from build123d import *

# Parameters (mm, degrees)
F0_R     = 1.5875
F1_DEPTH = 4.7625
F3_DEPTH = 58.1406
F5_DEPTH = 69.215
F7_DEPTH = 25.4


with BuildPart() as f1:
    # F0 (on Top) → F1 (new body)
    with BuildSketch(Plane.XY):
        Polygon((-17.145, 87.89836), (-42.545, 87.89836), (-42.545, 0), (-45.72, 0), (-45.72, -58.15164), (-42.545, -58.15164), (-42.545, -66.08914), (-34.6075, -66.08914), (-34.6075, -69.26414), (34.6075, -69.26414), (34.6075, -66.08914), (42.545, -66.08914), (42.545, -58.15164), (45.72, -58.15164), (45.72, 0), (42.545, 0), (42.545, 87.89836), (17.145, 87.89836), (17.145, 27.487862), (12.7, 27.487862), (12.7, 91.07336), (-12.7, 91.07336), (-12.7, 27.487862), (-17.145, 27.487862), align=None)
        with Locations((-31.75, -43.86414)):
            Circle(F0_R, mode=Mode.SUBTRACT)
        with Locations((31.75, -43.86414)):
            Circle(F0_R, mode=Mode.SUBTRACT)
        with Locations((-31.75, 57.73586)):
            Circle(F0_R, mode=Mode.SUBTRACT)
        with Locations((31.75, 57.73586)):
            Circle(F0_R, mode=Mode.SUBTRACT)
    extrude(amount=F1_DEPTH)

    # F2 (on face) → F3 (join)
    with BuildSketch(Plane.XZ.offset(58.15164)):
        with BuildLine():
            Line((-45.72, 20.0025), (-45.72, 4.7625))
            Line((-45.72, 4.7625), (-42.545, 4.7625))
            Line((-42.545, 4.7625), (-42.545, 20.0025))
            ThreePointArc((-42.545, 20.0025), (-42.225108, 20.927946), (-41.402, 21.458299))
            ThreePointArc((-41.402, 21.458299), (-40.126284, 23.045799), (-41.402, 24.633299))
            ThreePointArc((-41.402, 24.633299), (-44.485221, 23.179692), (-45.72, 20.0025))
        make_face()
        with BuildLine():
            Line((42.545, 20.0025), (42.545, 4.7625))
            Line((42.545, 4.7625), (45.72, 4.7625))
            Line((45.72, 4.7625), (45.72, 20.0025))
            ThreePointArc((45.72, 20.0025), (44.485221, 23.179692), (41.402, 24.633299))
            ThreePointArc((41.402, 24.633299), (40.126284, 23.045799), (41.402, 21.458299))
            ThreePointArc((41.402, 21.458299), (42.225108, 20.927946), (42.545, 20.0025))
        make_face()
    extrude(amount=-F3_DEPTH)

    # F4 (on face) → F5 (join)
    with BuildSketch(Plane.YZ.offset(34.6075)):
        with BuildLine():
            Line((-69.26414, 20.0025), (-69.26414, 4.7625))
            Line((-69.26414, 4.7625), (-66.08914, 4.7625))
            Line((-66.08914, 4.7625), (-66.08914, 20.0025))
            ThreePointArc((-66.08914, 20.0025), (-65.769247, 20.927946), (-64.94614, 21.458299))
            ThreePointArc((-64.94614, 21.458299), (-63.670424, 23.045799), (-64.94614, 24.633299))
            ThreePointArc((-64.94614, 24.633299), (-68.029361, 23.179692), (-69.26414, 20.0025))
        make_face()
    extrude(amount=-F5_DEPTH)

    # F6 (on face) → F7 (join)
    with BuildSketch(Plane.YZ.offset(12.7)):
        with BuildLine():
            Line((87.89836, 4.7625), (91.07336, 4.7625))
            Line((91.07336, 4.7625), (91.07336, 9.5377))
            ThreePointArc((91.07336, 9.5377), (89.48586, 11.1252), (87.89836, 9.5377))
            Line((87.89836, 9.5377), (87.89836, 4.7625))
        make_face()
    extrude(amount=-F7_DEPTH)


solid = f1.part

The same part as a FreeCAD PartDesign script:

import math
import FreeCAD as App
import Part
import Sketcher

V = App.Vector
Q = App.Units.Quantity


def add_polygon(sketch, points):
    """Adds a closed chain of lines whose ends are joined by coincident constraints."""
    first, n = sketch.GeometryCount, len(points)
    for a, b in zip(points, points[1:] + points[:1]):
        sketch.addGeometry(Part.LineSegment(App.Vector(*a, 0), App.Vector(*b, 0)), False)
    for i in range(n):
        sketch.addConstraint(Sketcher.Constraint("Coincident", first + i, 2, first + (i + 1) % n, 1))

doc = App.newDocument("Part")
body = doc.addObject("PartDesign::Body", "Body")

sketch1 = doc.addObject("Sketcher::SketchObject", "Sketch")
body.addObject(sketch1)
sketch1.AttachmentSupport = (doc.XY_Plane, [""])
sketch1.MapMode = "FlatFace"
add_polygon(sketch1, [(-17.1, 87.9), (-42.5, 87.9), (-42.5, 0), (-45.7, 0), (-45.7, -58.2), (-42.5, -58.2), (-42.5, -66.1), (-34.6, -66.1), (-34.6, -69.3), (34.6, -69.3), (34.6, -66.1), (42.5, -66.1), (42.5, -58.2), (45.7, -58.2), (45.7, 0), (42.5, 0), (42.5, 87.9), (17.1, 87.9), (17.1, 27.5), (12.7, 27.5), (12.7, 91.1), (-12.7, 91.1), (-12.7, 27.5), (-17.1, 27.5)])
sketch1.addGeometry(Part.Circle(V(-31.8, -43.9, 0), V(0, 0, 1), 1.6), False)
sketch1.addGeometry(Part.Circle(V(31.8, -43.9, 0), V(0, 0, 1), 1.6), False)
sketch1.addGeometry(Part.Circle(V(-31.8, 57.7, 0), V(0, 0, 1), 1.6), False)
sketch1.addGeometry(Part.Circle(V(31.8, 57.7, 0), V(0, 0, 1), 1.6), False)
sketch1.addConstraint(Sketcher.Constraint("Horizontal", 0))
sketch1.addConstraint(Sketcher.Constraint("Vertical", 1))
sketch1.addConstraint(Sketcher.Constraint("Horizontal", 2))
sketch1.addConstraint(Sketcher.Constraint("Vertical", 3))
sketch1.addConstraint(Sketcher.Constraint("Horizontal", 4))
sketch1.addConstraint(Sketcher.Constraint("Vertical", 5))
sketch1.addConstraint(Sketcher.Constraint("Horizontal", 6))
sketch1.addConstraint(Sketcher.Constraint("Vertical", 7))
sketch1.addConstraint(Sketcher.Constraint("Horizontal", 8))
sketch1.addConstraint(Sketcher.Constraint("Vertical", 9))
sketch1.addConstraint(Sketcher.Constraint("Horizontal", 10))
sketch1.addConstraint(Sketcher.Constraint("Vertical", 11))
sketch1.addConstraint(Sketcher.Constraint("Horizontal", 12))
sketch1.addConstraint(Sketcher.Constraint("Vertical", 13))
sketch1.addConstraint(Sketcher.Constraint("Horizontal", 14))
sketch1.addConstraint(Sketcher.Constraint("Vertical", 15))
sketch1.addConstraint(Sketcher.Constraint("Horizontal", 16))
sketch1.addConstraint(Sketcher.Constraint("Vertical", 17))
sketch1.addConstraint(Sketcher.Constraint("Horizontal", 18))
sketch1.addConstraint(Sketcher.Constraint("Vertical", 19))
sketch1.addConstraint(Sketcher.Constraint("Horizontal", 20))
sketch1.addConstraint(Sketcher.Constraint("Vertical", 21))
sketch1.addConstraint(Sketcher.Constraint("Horizontal", 22))
sketch1.addConstraint(Sketcher.Constraint("Vertical", 23))
sketch1.addConstraint(Sketcher.Constraint("Equal", 24, 25))
sketch1.addConstraint(Sketcher.Constraint("Equal", 25, 26))
sketch1.addConstraint(Sketcher.Constraint("Equal", 26, 27))
sketch1.addConstraint(Sketcher.Constraint("Symmetric", 2, 2, 13, 2, -1, 1))
sketch1.addConstraint(Sketcher.Constraint("Symmetric", 24, 3, 25, 3, -2))
sketch1.addConstraint(Sketcher.Constraint("Symmetric", 26, 3, 27, 3, -2))
sketch1.addConstraint(Sketcher.Constraint("Symmetric", 6, 2, 9, 2, -2))
sketch1.addConstraint(Sketcher.Constraint("Symmetric", 4, 2, 11, 2, -2))
sketch1.addConstraint(Sketcher.Constraint("Symmetric", 1, 2, 14, 2, -2))
sketch1.addConstraint(Sketcher.Constraint("Symmetric", 18, 2, 21, 2, -2))
sketch1.addConstraint(Sketcher.Constraint("Symmetric", 16, 2, 23, 2, -2))
sketch1.addConstraint(Sketcher.Constraint("Vertical", 24, 3, 26, 3))
sketch1.addConstraint(Sketcher.Constraint("Vertical", 1, 2, 4, 2))
sketch1.addConstraint(Sketcher.Constraint("Equal", 16, 20))
sketch1.addConstraint(Sketcher.Constraint("Equal", 10, 5))
sketch1.addConstraint(Sketcher.Constraint("Equal", 14, 7))
sketch1.addConstraint(Sketcher.Constraint("DistanceX", 0, 2, 0, 1, Q("1 in")))
sketch1.addConstraint(Sketcher.Constraint("Diameter", 24, Q("0.125 in")))
sketch1.addConstraint(Sketcher.Constraint("DistanceY", 24, 3, 26, 3, Q("4 in")))
sketch1.addConstraint(Sketcher.Constraint("DistanceY", 7, 2, 24, 3, Q("1 in")))
sketch1.addConstraint(Sketcher.Constraint("DistanceX", 2, 2, -1, 1, Q("1.8 in")))
sketch1.addConstraint(Sketcher.Constraint("DistanceX", 24, 3, 25, 3, Q("2.5 in")))
sketch1.addConstraint(Sketcher.Constraint("DistanceX", 2, 2, 2, 1, Q("0.125 in")))
sketch1.addConstraint(Sketcher.Constraint("DistanceX", 6, 1, 6, 2, Q("0.3125 in")))
sketch1.addConstraint(Sketcher.Constraint("DistanceY", 26, 3, 0, 2, Q("1.1875 in")))
sketch1.addConstraint(Sketcher.Constraint("DistanceY", 16, 2, 19, 2, Q("0.125 in")))
sketch1.addConstraint(Sketcher.Constraint("DistanceY", 1, 2, 1, 1, 87.89836))
sketch1.addConstraint(Sketcher.Constraint("DistanceY", 17, 2, 27, 3, 30.247998))
pad1 = doc.addObject("PartDesign::Pad", "Pad")
body.addObject(pad1)
pad1.Profile = sketch1
pad1.Length = Q("0.1875 in")

sketch2 = doc.addObject("Sketcher::SketchObject", "Sketch001")
body.addObject(sketch2)
sketch2.AttachmentSupport = (doc.XZ_Plane, [""])
sketch2.MapMode = "FlatFace"
sketch2.AttachmentOffset = App.Placement(V(0, 0, 58.15164), App.Rotation())
sketch2.addGeometry(Part.LineSegment(V(-45.72, 20.0025, 0), V(-45.72, 4.7625, 0)), False)
sketch2.addGeometry(Part.LineSegment(V(-45.72, 4.7625, 0), V(-42.545, 4.7625, 0)), False)
sketch2.addGeometry(Part.LineSegment(V(-42.545, 4.7625, 0), V(-42.545, 20.0025, 0)), False)
sketch2.addGeometry(Part.ArcOfCircle(Part.Circle(V(-41.046401, 20.002501, 0), V(0, 0, 1), 1.498599), math.radians(103.726509), math.radians(180.000031)), False)
sketch2.addGeometry(Part.ArcOfCircle(Part.Circle(V(-41.751884, 23.045799, 0), V(0, 0, 1), 1.6256), math.radians(-77.570761), math.radians(77.570761)), False)
sketch2.addGeometry(Part.ArcOfCircle(Part.Circle(V(-41.12279, 20.044385, 0), V(0, 0, 1), 4.597401), math.radians(93.481835), math.radians(180.522003)), False)
sketch2.addGeometry(Part.LineSegment(V(42.545, 20.0025, 0), V(42.545, 4.7625, 0)), False)
sketch2.addGeometry(Part.LineSegment(V(42.545, 4.7625, 0), V(45.72, 4.7625, 0)), False)
sketch2.addGeometry(Part.LineSegment(V(45.72, 4.7625, 0), V(45.72, 20.0025, 0)), False)
sketch2.addGeometry(Part.ArcOfCircle(Part.Circle(V(41.12279, 20.044385, 0), V(0, 0, 1), 4.597401), math.radians(-0.522003), math.radians(86.518165)), False)
sketch2.addGeometry(Part.ArcOfCircle(Part.Circle(V(41.751884, 23.045799, 0), V(0, 0, 1), 1.6256), math.radians(102.429239), math.radians(257.570761)), False)
sketch2.addGeometry(Part.ArcOfCircle(Part.Circle(V(41.046401, 20.002501, 0), V(0, 0, 1), 1.498599), math.radians(-0.000031), math.radians(76.273491)), False)
sketch2.addConstraint(Sketcher.Constraint("Coincident", 0, 2, 1, 1))
sketch2.addConstraint(Sketcher.Constraint("Coincident", 1, 2, 2, 1))
sketch2.addConstraint(Sketcher.Constraint("Tangent", 2, 2, 3, 2))
sketch2.addConstraint(Sketcher.Constraint("Coincident", 3, 1, 4, 1))
sketch2.addConstraint(Sketcher.Constraint("Coincident", 4, 2, 5, 1))
sketch2.addConstraint(Sketcher.Constraint("Coincident", 5, 2, 0, 1))
sketch2.addConstraint(Sketcher.Constraint("Coincident", 6, 2, 7, 1))
sketch2.addConstraint(Sketcher.Constraint("Coincident", 7, 2, 8, 1))
sketch2.addConstraint(Sketcher.Constraint("Coincident", 8, 2, 9, 1))
sketch2.addConstraint(Sketcher.Constraint("Coincident", 9, 2, 10, 1))
sketch2.addConstraint(Sketcher.Constraint("Coincident", 10, 2, 11, 2))
sketch2.addConstraint(Sketcher.Constraint("Tangent", 11, 1, 6, 1))
sketch2.addConstraint(Sketcher.Constraint("Vertical", 0))
sketch2.addConstraint(Sketcher.Constraint("Horizontal", 1))
sketch2.addConstraint(Sketcher.Constraint("Vertical", 2))
sketch2.addConstraint(Sketcher.Constraint("Vertical", 6))
sketch2.addConstraint(Sketcher.Constraint("Horizontal", 7))
sketch2.addConstraint(Sketcher.Constraint("Vertical", 8))
sketch2.addConstraint(Sketcher.Constraint("Equal", 5, 9))
sketch2.addConstraint(Sketcher.Constraint("Equal", 4, 10))
sketch2.addConstraint(Sketcher.Constraint("Equal", 3, 11))
sketch2.addConstraint(Sketcher.Constraint("Symmetric", 5, 3, 9, 3, -2))
sketch2.addConstraint(Sketcher.Constraint("Symmetric", 4, 3, 10, 3, -2))
sketch2.addConstraint(Sketcher.Constraint("Symmetric", 3, 3, 11, 3, -2))
sketch2.addConstraint(Sketcher.Constraint("Symmetric", 0, 2, 7, 2, -2))
sketch2.addConstraint(Sketcher.Constraint("Horizontal", 2, 2, 5, 2))
sketch2.addConstraint(Sketcher.Constraint("Vertical", 3, 1, 4, 2))
sketch2.addConstraint(Sketcher.Constraint("DistanceY", 0, 2, 0, 1, Q("0.6 in")))
sketch2.addConstraint(Sketcher.Constraint("Radius", 3, Q("0.059 in")))
sketch2.addConstraint(Sketcher.Constraint("Radius", 4, Q("0.064 in")))
sketch2.addConstraint(Sketcher.Constraint("Radius", 5, Q("0.181 in")))
sketch2.addConstraint(Sketcher.Constraint("DistanceX", 0, 2, -1, 1, Q("1.8 in")))
sketch2.addConstraint(Sketcher.Constraint("DistanceX", 1, 1, 1, 2, Q("0.125 in")))
sketch2.addConstraint(Sketcher.Constraint("DistanceX", 3, 1, -1, 1, Q("1.63 in")))
sketch2.addConstraint(Sketcher.Constraint("DistanceY", -1, 1, 0, 2, Q("0.1875 in")))
sketch2.addConstraint(Sketcher.Constraint("DistanceY", 3, 1, 4, 3, Q("0.0625 in")))
pad2 = doc.addObject("PartDesign::Pad", "Pad001")
body.addObject(pad2)
pad2.Profile = sketch2
pad2.Length = Q("2.289 in")
pad2.Reversed = True

sketch3 = doc.addObject("Sketcher::SketchObject", "Sketch002")
body.addObject(sketch3)
sketch3.AttachmentSupport = (doc.YZ_Plane, [""])
sketch3.MapMode = "FlatFace"
sketch3.AttachmentOffset = App.Placement(V(0, 0, 1.3625 * 25.4), App.Rotation())
sketch3.addGeometry(Part.LineSegment(V(-69.3, 20, 0), V(-69.3, 4.8, 0)), False)
sketch3.addGeometry(Part.LineSegment(V(-69.3, 4.8, 0), V(-66.1, 4.8, 0)), False)
sketch3.addGeometry(Part.LineSegment(V(-66.1, 4.8, 0), V(-66.1, 20, 0)), False)
sketch3.addGeometry(Part.ArcOfCircle(Part.Circle(V(-64.6, 20, 0), V(0, 0, 1), 1.5), math.radians(104), math.radians(180)), False)
sketch3.addGeometry(Part.ArcOfCircle(Part.Circle(V(-65.3, 23, 0), V(0, 0, 1), 1.6), math.radians(-78), math.radians(78)), False)
sketch3.addGeometry(Part.ArcOfCircle(Part.Circle(V(-64.7, 20, 0), V(0, 0, 1), 4.6), math.radians(93), math.radians(181)), False)
sketch3.addConstraint(Sketcher.Constraint("Coincident", 0, 2, 1, 1))
sketch3.addConstraint(Sketcher.Constraint("Coincident", 1, 2, 2, 1))
sketch3.addConstraint(Sketcher.Constraint("Tangent", 2, 2, 3, 2))
sketch3.addConstraint(Sketcher.Constraint("Coincident", 3, 1, 4, 1))
sketch3.addConstraint(Sketcher.Constraint("Coincident", 4, 2, 5, 1))
sketch3.addConstraint(Sketcher.Constraint("Coincident", 5, 2, 0, 1))
sketch3.addConstraint(Sketcher.Constraint("Vertical", 0))
sketch3.addConstraint(Sketcher.Constraint("Horizontal", 1))
sketch3.addConstraint(Sketcher.Constraint("Vertical", 2))
sketch3.addConstraint(Sketcher.Constraint("Horizontal", 2, 2, 5, 2))
sketch3.addConstraint(Sketcher.Constraint("Vertical", 3, 1, 4, 2))
sketch3.addConstraint(Sketcher.Constraint("DistanceY", 0, 2, 0, 1, Q("0.6 in")))
sketch3.addConstraint(Sketcher.Constraint("Radius", 3, Q("0.0590001 in")))
sketch3.addConstraint(Sketcher.Constraint("Radius", 4, Q("0.064 in")))
sketch3.addConstraint(Sketcher.Constraint("Radius", 5, Q("0.181 in")))
sketch3.addConstraint(Sketcher.Constraint("DistanceX", 1, 1, 1, 2, Q("0.125 in")))
sketch3.addConstraint(Sketcher.Constraint("DistanceX", 5, 2, 3, 1, Q("0.17 in")))
sketch3.addConstraint(Sketcher.Constraint("DistanceY", -1, 1, 0, 2, Q("0.1875 in")))
sketch3.addConstraint(Sketcher.Constraint("DistanceY", 3, 1, 4, 3, Q("0.0625 in")))
sketch3.addConstraint(Sketcher.Constraint("DistanceX", 3, 3, -1, 1, 64.590538))
pad3 = doc.addObject("PartDesign::Pad", "Pad002")
body.addObject(pad3)
pad3.Profile = sketch3
pad3.Length = Q("2.725 in")
pad3.Reversed = True

sketch4 = doc.addObject("Sketcher::SketchObject", "Sketch003")
body.addObject(sketch4)
sketch4.AttachmentSupport = (doc.YZ_Plane, [""])
sketch4.MapMode = "FlatFace"
sketch4.AttachmentOffset = App.Placement(V(0, 0, 0.5 * 25.4), App.Rotation())
sketch4.addGeometry(Part.LineSegment(V(87.9, 4.8, 0), V(91.1, 4.8, 0)), False)
sketch4.addGeometry(Part.LineSegment(V(91.1, 4.8, 0), V(91.1, 9.5, 0)), False)
sketch4.addGeometry(Part.ArcOfCircle(Part.Circle(V(89.5, 9.5, 0), V(0, 0, 1), 1.6), math.radians(0), math.radians(180)), False)
sketch4.addGeometry(Part.LineSegment(V(87.9, 9.5, 0), V(87.9, 4.8, 0)), False)
sketch4.addConstraint(Sketcher.Constraint("Coincident", 0, 2, 1, 1))
sketch4.addConstraint(Sketcher.Constraint("Tangent", 1, 2, 2, 1))
sketch4.addConstraint(Sketcher.Constraint("Tangent", 2, 2, 3, 1))
sketch4.addConstraint(Sketcher.Constraint("Coincident", 3, 2, 0, 1))
sketch4.addConstraint(Sketcher.Constraint("Horizontal", 0))
sketch4.addConstraint(Sketcher.Constraint("Vertical", 1))
sketch4.addConstraint(Sketcher.Constraint("Vertical", 3))
sketch4.addConstraint(Sketcher.Constraint("Radius", 2, Q("0.0625 in")))
sketch4.addConstraint(Sketcher.Constraint("DistanceY", 1, 1, 1, 2, Q("0.188 in")))
sketch4.addConstraint(Sketcher.Constraint("DistanceY", -1, 1, 0, 2, Q("0.1875 in")))
sketch4.addConstraint(Sketcher.Constraint("DistanceX", -1, 1, 2, 3, 89.48586))
pad4 = doc.addObject("PartDesign::Pad", "Pad003")
body.addObject(pad4)
pad4.Profile = sketch4
pad4.Length = Q("1 in")
pad4.Reversed = True

doc.recompute()
